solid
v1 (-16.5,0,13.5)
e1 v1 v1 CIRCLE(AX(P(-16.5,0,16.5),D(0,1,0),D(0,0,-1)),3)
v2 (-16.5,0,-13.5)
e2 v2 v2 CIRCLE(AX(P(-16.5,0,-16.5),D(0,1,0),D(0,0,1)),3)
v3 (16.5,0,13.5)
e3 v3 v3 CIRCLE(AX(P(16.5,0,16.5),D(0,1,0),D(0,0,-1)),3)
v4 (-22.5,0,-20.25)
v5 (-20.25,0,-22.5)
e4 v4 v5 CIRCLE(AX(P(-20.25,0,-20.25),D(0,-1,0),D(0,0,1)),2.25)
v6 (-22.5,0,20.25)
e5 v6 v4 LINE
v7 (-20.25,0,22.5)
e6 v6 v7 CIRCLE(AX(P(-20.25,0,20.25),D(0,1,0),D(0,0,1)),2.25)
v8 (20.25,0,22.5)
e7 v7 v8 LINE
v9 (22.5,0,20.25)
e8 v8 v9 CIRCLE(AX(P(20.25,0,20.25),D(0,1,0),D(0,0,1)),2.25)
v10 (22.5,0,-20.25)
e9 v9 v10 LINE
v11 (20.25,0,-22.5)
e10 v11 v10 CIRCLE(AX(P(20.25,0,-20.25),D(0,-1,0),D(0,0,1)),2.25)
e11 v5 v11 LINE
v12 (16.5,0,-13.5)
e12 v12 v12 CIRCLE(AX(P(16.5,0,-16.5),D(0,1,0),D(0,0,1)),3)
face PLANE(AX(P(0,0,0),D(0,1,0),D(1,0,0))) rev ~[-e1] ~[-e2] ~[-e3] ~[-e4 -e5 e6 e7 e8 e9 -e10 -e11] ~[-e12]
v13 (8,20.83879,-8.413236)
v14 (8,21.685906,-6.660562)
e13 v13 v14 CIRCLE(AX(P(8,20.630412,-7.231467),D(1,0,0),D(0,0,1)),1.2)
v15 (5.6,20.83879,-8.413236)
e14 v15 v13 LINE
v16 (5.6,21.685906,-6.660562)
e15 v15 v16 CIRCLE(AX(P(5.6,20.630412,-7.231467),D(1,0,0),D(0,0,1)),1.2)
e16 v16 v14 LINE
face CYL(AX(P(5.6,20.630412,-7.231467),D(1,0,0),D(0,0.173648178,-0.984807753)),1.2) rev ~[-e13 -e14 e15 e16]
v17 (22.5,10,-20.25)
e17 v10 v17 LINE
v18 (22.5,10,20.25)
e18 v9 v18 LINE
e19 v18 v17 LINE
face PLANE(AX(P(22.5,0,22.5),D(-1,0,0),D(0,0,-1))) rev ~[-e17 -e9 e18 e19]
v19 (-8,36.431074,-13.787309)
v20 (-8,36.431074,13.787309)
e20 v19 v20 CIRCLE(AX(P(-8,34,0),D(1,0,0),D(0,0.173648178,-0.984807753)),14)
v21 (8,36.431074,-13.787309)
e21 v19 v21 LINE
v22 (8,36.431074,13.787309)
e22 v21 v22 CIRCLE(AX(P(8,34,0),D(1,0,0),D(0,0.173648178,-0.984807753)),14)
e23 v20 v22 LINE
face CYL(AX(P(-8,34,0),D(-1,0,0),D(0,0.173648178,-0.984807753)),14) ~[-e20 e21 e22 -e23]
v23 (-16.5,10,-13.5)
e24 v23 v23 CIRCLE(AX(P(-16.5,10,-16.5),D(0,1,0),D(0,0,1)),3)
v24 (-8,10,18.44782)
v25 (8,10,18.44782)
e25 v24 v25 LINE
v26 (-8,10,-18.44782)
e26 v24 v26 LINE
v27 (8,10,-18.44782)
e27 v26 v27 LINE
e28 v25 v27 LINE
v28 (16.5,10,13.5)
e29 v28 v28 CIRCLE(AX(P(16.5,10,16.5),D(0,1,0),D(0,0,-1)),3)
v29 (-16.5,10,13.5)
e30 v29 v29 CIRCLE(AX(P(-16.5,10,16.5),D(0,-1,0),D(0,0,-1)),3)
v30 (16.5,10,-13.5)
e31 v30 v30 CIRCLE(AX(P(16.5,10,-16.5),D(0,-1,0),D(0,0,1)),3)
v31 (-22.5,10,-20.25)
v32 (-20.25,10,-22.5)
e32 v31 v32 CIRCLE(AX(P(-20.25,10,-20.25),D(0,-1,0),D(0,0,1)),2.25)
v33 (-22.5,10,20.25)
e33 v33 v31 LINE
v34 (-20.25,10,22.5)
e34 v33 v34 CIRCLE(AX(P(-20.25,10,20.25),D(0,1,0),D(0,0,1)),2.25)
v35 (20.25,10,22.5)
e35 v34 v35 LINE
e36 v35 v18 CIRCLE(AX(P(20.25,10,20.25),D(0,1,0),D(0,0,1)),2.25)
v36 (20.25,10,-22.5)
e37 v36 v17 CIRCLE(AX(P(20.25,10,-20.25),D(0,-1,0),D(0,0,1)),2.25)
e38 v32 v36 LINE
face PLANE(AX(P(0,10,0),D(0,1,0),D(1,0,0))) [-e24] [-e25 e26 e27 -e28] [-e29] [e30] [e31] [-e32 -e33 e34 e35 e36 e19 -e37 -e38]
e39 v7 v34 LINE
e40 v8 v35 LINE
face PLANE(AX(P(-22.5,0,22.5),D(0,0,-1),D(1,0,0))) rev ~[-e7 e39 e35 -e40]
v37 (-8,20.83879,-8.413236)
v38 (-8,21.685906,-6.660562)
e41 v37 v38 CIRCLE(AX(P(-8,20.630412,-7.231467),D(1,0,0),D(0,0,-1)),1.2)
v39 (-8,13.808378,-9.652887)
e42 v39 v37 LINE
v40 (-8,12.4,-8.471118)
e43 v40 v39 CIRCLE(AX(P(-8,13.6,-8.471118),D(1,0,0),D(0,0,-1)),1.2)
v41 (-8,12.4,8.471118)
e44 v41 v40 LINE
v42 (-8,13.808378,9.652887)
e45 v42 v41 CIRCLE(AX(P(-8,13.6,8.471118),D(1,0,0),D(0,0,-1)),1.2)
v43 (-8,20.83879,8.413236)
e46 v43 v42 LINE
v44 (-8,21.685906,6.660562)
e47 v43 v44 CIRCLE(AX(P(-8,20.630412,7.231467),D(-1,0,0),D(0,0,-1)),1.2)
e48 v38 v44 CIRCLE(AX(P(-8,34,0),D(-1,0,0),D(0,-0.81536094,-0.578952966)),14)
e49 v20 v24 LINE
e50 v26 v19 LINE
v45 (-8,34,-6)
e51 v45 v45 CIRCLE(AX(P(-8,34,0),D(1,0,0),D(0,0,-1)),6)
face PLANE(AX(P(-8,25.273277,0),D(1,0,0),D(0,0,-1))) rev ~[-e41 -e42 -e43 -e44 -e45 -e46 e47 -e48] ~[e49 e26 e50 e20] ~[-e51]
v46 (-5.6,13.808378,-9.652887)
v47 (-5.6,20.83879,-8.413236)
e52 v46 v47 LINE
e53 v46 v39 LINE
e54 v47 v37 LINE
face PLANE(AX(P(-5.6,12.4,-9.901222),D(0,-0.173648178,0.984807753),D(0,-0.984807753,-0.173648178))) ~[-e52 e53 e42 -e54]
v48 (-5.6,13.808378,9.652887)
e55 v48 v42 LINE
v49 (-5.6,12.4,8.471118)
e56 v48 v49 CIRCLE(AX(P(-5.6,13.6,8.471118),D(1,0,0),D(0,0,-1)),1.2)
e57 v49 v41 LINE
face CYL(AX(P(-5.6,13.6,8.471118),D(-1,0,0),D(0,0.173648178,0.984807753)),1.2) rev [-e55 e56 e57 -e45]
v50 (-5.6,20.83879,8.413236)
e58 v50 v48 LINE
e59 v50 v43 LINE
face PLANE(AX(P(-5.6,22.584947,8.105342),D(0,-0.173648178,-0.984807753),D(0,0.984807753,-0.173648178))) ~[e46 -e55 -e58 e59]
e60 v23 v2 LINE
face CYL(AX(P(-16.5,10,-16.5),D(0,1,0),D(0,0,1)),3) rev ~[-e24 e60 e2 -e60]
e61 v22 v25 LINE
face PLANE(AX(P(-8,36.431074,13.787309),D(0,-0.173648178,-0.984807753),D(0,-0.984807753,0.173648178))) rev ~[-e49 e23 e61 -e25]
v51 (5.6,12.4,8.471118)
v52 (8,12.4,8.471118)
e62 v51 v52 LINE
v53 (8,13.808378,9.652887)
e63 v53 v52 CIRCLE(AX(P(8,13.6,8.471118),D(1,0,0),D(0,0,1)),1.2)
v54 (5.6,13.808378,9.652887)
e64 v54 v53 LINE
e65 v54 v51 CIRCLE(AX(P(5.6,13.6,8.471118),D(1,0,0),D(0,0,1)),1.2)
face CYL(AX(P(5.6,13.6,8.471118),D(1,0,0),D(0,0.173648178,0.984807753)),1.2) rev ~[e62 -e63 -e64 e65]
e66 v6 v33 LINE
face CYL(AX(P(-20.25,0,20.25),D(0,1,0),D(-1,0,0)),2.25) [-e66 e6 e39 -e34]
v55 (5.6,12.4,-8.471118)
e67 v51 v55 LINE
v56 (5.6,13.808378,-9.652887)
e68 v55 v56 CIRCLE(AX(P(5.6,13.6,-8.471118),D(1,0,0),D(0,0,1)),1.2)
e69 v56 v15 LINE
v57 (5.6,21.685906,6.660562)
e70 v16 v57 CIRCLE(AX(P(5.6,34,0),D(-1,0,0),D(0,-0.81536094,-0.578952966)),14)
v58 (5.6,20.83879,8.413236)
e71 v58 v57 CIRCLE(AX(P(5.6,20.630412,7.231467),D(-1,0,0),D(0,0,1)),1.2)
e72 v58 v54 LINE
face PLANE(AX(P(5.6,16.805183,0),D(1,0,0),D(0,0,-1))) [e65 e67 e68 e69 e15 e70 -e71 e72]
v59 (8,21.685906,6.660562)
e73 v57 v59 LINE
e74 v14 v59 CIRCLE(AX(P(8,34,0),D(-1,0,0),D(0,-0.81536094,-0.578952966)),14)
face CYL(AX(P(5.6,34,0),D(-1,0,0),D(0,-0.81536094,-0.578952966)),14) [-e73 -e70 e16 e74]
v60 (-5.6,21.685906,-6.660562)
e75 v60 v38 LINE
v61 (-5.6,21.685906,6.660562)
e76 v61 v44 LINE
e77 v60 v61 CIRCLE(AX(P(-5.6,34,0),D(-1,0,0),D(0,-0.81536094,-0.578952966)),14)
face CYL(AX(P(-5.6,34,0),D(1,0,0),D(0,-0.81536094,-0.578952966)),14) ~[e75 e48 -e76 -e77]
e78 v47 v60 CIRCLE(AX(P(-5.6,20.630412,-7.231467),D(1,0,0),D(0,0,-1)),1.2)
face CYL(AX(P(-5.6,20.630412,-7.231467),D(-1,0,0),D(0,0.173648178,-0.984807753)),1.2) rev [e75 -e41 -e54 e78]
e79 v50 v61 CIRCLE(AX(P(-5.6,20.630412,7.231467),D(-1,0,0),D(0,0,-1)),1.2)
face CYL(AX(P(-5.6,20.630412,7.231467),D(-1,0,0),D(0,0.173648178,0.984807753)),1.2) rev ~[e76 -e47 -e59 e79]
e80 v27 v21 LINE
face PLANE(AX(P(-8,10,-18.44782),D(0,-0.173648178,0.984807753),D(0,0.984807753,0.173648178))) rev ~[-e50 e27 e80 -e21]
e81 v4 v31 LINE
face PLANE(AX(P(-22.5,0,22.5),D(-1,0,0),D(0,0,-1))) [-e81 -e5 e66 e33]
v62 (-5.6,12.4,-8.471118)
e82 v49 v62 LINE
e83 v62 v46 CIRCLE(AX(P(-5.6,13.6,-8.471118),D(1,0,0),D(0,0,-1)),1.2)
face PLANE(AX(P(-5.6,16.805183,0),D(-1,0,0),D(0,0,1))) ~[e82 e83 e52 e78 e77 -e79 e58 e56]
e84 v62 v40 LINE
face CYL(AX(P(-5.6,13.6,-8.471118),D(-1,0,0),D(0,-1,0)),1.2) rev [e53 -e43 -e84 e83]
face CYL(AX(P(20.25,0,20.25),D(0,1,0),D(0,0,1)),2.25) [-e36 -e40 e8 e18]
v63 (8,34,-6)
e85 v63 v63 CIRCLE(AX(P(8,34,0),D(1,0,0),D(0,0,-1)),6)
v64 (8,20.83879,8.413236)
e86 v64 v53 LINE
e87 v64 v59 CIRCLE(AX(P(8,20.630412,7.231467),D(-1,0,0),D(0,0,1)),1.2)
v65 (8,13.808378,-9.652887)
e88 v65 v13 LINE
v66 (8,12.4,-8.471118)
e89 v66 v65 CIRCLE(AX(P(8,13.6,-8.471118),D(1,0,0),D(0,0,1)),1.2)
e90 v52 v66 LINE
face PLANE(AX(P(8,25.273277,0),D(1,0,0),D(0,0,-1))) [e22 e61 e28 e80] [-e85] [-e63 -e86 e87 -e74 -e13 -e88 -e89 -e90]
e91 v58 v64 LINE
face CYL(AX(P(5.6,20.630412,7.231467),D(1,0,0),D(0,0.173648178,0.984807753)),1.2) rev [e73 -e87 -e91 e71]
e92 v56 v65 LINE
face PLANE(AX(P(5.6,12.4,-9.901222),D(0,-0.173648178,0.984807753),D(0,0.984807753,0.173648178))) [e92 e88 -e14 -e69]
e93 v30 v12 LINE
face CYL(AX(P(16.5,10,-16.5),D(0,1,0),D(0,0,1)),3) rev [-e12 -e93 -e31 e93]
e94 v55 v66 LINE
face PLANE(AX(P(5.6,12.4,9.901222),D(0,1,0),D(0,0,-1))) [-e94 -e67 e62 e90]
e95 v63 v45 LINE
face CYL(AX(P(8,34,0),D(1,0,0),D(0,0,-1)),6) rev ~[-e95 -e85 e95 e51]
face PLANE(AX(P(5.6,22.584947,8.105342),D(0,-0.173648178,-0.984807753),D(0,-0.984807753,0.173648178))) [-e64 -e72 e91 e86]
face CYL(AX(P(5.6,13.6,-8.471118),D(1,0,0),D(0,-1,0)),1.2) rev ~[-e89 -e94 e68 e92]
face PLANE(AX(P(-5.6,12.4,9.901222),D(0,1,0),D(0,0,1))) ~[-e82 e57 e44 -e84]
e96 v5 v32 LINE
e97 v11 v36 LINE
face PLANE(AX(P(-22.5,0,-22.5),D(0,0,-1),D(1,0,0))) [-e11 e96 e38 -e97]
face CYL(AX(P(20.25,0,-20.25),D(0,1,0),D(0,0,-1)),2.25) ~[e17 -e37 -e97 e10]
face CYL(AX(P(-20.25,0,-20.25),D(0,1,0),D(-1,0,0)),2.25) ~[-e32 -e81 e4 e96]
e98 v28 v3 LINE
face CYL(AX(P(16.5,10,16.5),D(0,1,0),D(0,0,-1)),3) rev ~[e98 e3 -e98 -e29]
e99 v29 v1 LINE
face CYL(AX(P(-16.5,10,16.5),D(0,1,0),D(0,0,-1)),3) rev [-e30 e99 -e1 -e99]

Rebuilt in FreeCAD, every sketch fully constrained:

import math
import FreeCAD as App
import Part
import Sketcher
Q = App.Units.Quantity


def edges_at(feature, points):
    """Names of the edges that pass closest to the given points."""
    edges = feature.Shape.Edges
    near = lambda p: min(range(len(edges)), key=lambda i: edges[i].distToShape(Part.Vertex(*p))[0])
    return sorted({f"Edge{near(p) + 1}" for p in points})

doc = App.newDocument("Part")
body = doc.addObject("PartDesign::Body", "Body")

sketch1 = body.newObject("Sketcher::SketchObject", "Sketch")
sketch1.AttachmentSupport = (doc.getObject("XZ_Plane"), [""])
sketch1.MapMode = "FlatFace"
sketch1.addGeometry([
    Part.LineSegment(App.Vector(-22, -22, 0), App.Vector(-22, 22, 0)),
    Part.LineSegment(App.Vector(-22, 22, 0), App.Vector(22, 22, 0)),
    Part.LineSegment(App.Vector(22, 22, 0), App.Vector(22, -22, 0)),
    Part.LineSegment(App.Vector(22, -22, 0), App.Vector(-22, -22, 0)),
], False)
sketch1.addConstraint([
    Sketcher.Constraint("Coincident", 0, 2, 1, 1),
    Sketcher.Constraint("Coincident", 1, 2, 2, 1),
    Sketcher.Constraint("Coincident", 2, 2, 3, 1),
    Sketcher.Constraint("Coincident", 3, 2, 0, 1),
    Sketcher.Constraint("Vertical", 0),
    Sketcher.Constraint("Horizontal", 1),
    Sketcher.Constraint("Vertical", 2),
    Sketcher.Constraint("Horizontal", 3),
    Sketcher.Constraint("Symmetric", 0, 2, 2, 2, -1, 1),
    Sketcher.Constraint("Equal", 3, 0),
    Sketcher.Constraint("DistanceX", 1, 1, 1, 2, 45.0),
])
pad1 = body.newObject("PartDesign::Pad", "Pad")
pad1.Profile = sketch1
pad1.Length = 10
pad1.Reversed = True

sketch2 = body.newObject("Sketcher::SketchObject", "Sketch001")
sketch2.AttachmentSupport = (doc.getObject("YZ_Plane"), [""])
sketch2.MapMode = "FlatFace"
sketch2.AttachmentOffset = App.Placement(App.Vector(0, 0, -8), App.Rotation())
sketch2.addGeometry([
    Part.LineSegment(App.Vector(36, 14, 0), App.Vector(10, 18, 0)),
    Part.LineSegment(App.Vector(10, 18, 0), App.Vector(10, -18, 0)),
    Part.LineSegment(App.Vector(10, -18, 0), App.Vector(36, -14, 0)),
    Part.ArcOfCircle(Part.Circle(App.Vector(34, 0, 0), App.Vector(0, 0, 1), 14), math.radians(-80), math.radians(80)),
], False)
sketch2.addConstraint([
    Sketcher.Constraint("Coincident", 0, 2, 1, 1),
    Sketcher.Constraint("Coincident", 1, 2, 2, 1),
    Sketcher.Constraint("Tangent", 2, 2, 3, 1),
    Sketcher.Constraint("Tangent", 3, 2, 0, 1),
    Sketcher.Constraint("Vertical", 1),
    Sketcher.Constraint("Symmetric", 2, 2, 3, 2, -1),
    Sketcher.Constraint("Radius", 3, 14.0),
    Sketcher.Constraint("Angle", 0, Q("170 deg")),
    Sketcher.Constraint("DistanceX", -1, 1, 3, 3, 34.0),
    Sketcher.Constraint("DistanceX", -1, 1, 0, 2, 10.0),
])
pad2 = body.newObject("PartDesign::Pad", "Pad001")
pad2.Profile = sketch2
pad2.Length = 16

sketch3 = body.newObject("Sketcher::SketchObject", "Sketch002")
sketch3.AttachmentSupport = (doc.getObject("YZ_Plane"), [""])
sketch3.MapMode = "FlatFace"
sketch3.AttachmentOffset = App.Placement(App.Vector(0, 0, 8), App.Rotation())
sketch3.addGeometry(Part.Circle(App.Vector(34, 0, 0), App.Vector(0, 0, 1), 6), False)
sketch3.addConstraint([
    Sketcher.Constraint("PointOnObject", 0, 3, -1),
    Sketcher.Constraint("Diameter", 0, 12.0),
    Sketcher.Constraint("DistanceX", -1, 1, 0, 3, 34.0),
])
pocket1 = body.newObject("PartDesign::Pocket", "Pocket")
pocket1.Profile = sketch3
pocket1.Type = "ThroughAll"

sketch4 = body.newObject("Sketcher::SketchObject", "Sketch003")
sketch4.AttachmentSupport = (doc.getObject("YZ_Plane"), [""])
sketch4.MapMode = "FlatFace"
sketch4.AttachmentOffset = App.Placement(App.Vector(0, 0, 5.6), App.Rotation())
sketch4.addGeometry([
    Part.LineSegment(App.Vector(23, 8, 0), App.Vector(12, 10, 0)),
    Part.LineSegment(App.Vector(12, 10, 0), App.Vector(12, -10, 0)),
    Part.LineSegment(App.Vector(12, -10, 0), App.Vector(23, -8, 0)),
    Part.ArcOfCircle(Part.Circle(App.Vector(34, 0, 0), App.Vector(0, 0, 1), 14), math.radians(145), math.radians(215)),
], False)
sketch4.addConstraint([
    Sketcher.Constraint("Coincident", 0, 2, 1, 1),
    Sketcher.Constraint("Coincident", 1, 2, 2, 1),
    Sketcher.Constraint("Coincident", 2, 2, 3, 2),
    Sketcher.Constraint("Coincident", 3, 1, 0, 1),
    Sketcher.Constraint("Vertical", 1),
    Sketcher.Constraint("Symmetric", 2, 2, 3, 1, -1),
    Sketcher.Constraint("Equal", 0, 2),
    Sketcher.Constraint("Radius", 3, 14.0),
    Sketcher.Constraint("Angle", 0, Q("170 deg")),
    Sketcher.Constraint("DistanceX", -1, 1, 3, 3, 34.0),
    Sketcher.Constraint("DistanceX", -1, 1, 0, 2, 12.4),
    Sketcher.Constraint("DistanceY", 1, 2, 1, 1, 19.802445),
])
pocket2 = body.newObject("PartDesign::Pocket", "Pocket001")
pocket2.Profile = sketch4
pocket2.Length = 2.4
pocket2.Reversed = True
doc.recompute()

mirrored = body.newObject("PartDesign::Mirrored", "Mirrored")
mirrored.Originals = [pocket2]
mirrored.MirrorPlane = (doc.getObject("YZ_Plane"), [""])
body.Tip = mirrored

sketch5 = body.newObject("Sketcher::SketchObject", "Sketch004")
sketch5.AttachmentSupport = (doc.getObject("XZ_Plane"), [""])
sketch5.MapMode = "FlatFace"
sketch5.AttachmentOffset = App.Placement(App.Vector(0, 0, -10), App.Rotation())
sketch5.addGeometry(Part.Circle(App.Vector(-16.5, -16.5, 0), App.Vector(0, 0, 1), 3), False)
sketch5.addConstraint([
    Sketcher.Constraint("Diameter", 0, 6.0),
    Sketcher.Constraint("DistanceX", 0, 3, -1, 1, 16.5),
    Sketcher.Constraint("DistanceY", 0, 3, -1, 1, 16.5),
])
pocket3 = body.newObject("PartDesign::Pocket", "Pocket002")
pocket3.Profile = sketch5
pocket3.Type = "ThroughAll"
pocket3.Reversed = True
doc.recompute()

mirrored2 = body.newObject("PartDesign::Mirrored", "Mirrored001")
mirrored2.Originals = [pocket3]
mirrored2.MirrorPlane = (doc.getObject("YZ_Plane"), [""])
body.Tip = mirrored2
doc.recompute()

mirrored3 = body.newObject("PartDesign::Mirrored", "Mirrored002")
mirrored3.Originals = [pocket3]
mirrored3.MirrorPlane = (doc.getObject("XY_Plane"), [""])
body.Tip = mirrored3

sketch6 = body.newObject("Sketcher::SketchObject", "Sketch005")
sketch6.AttachmentSupport = (doc.getObject("XZ_Plane"), [""])
sketch6.MapMode = "FlatFace"
sketch6.AttachmentOffset = App.Placement(App.Vector(0, 0, -10), App.Rotation())
sketch6.addGeometry(Part.Circle(App.Vector(16.5, 16.5, 0), App.Vector(0, 0, 1), 3), False)
sketch6.addConstraint([
    Sketcher.Constraint("Diameter", 0, 6.0),
    Sketcher.Constraint("DistanceX", -1, 1, 0, 3, 16.5),
    Sketcher.Constraint("DistanceY", -1, 1, 0, 3, 16.5),
])
pocket4 = body.newObject("PartDesign::Pocket", "Pocket003")
pocket4.Profile = sketch6
pocket4.Type = "ThroughAll"
pocket4.Reversed = True
doc.recompute()

fillet = body.newObject("PartDesign::Fillet", "Fillet")
fillet.Base = (pocket4, edges_at(pocket4, [
    (-22.5, 5, 22.5),
    (-22.5, 5, -22.5),
    (22.5, 5, -22.5),
    (22.5, 5, 22.5),
]))
fillet.Radius = 2.25
doc.recompute()

fillet2 = body.newObject("PartDesign::Fillet", "Fillet001")
fillet2.Base = (fillet, edges_at(fillet, [
    (6.8, 22.585, 8.105),
    (6.8, 22.585, -8.105),
    (6.8, 12.4, -9.901),
    (6.8, 12.4, 9.901),
    (-6.8, 22.585, -8.105),
    (-6.8, 22.585, 8.105),
    (-6.8, 12.4, 9.901),
    (-6.8, 12.4, -9.901),
]))
fillet2.Radius = 1.2

doc.recompute()
